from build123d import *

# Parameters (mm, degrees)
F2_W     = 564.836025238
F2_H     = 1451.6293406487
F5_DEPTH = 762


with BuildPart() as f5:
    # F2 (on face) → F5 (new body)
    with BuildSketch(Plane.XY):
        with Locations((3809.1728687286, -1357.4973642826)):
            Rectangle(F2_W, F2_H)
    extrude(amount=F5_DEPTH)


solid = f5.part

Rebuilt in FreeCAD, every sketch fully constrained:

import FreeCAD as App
import Part
import Sketcher
Q = App.Units.Quantity

doc = App.newDocument("Part")
body = doc.addObject("PartDesign::Body", "Body")

sketch1 = doc.addObject("Sketcher::SketchObject", "Sketch")
body.addObject(sketch1)
sketch1.AttachmentSupport = (doc.XY_Plane, [""])
sketch1.MapMode = "FlatFace"
sketch1.addGeometry([
    Part.LineSegment(App.Vector(3527, -632, 0), App.Vector(3527, -2083, 0)),
    Part.LineSegment(App.Vector(3527, -2083, 0), App.Vector(4092, -2083, 0)),
    Part.LineSegment(App.Vector(4092, -2083, 0), App.Vector(4092, -632, 0)),
    Part.LineSegment(App.Vector(4092, -632, 0), App.Vector(3527, -632, 0)),
], False)
sketch1.addConstraint([
    Sketcher.Constraint("Coincident", 0, 2, 1, 1),
    Sketcher.Constraint("Coincident", 1, 2, 2, 1),
    Sketcher.Constraint("Coincident", 2, 2, 3, 1),
    Sketcher.Constraint("Coincident", 3, 2, 0, 1),
    Sketcher.Constraint("Vertical", 0),
    Sketcher.Constraint("Horizontal", 1),
    Sketcher.Constraint("Vertical", 2),
    Sketcher.Constraint("Horizontal", 3),
    Sketcher.Constraint("DistanceY", 0, 2, 0, 1, Q("1451.629341 mm")),
    Sketcher.Constraint("DistanceX", 1, 1, 1, 2, Q("564.836025 mm")),
    Sketcher.Constraint("DistanceX", -1, 1, 1, 2, Q("4091.590881 mm")),
    Sketcher.Constraint("DistanceY", 0, 2, -1, 1, Q("2083.312035 mm")),
])
pad1 = doc.addObject("PartDesign::Pad", "Pad")
body.addObject(pad1)
pad1.Profile = sketch1
pad1.Length = Q("30 in")

doc.recompute()
